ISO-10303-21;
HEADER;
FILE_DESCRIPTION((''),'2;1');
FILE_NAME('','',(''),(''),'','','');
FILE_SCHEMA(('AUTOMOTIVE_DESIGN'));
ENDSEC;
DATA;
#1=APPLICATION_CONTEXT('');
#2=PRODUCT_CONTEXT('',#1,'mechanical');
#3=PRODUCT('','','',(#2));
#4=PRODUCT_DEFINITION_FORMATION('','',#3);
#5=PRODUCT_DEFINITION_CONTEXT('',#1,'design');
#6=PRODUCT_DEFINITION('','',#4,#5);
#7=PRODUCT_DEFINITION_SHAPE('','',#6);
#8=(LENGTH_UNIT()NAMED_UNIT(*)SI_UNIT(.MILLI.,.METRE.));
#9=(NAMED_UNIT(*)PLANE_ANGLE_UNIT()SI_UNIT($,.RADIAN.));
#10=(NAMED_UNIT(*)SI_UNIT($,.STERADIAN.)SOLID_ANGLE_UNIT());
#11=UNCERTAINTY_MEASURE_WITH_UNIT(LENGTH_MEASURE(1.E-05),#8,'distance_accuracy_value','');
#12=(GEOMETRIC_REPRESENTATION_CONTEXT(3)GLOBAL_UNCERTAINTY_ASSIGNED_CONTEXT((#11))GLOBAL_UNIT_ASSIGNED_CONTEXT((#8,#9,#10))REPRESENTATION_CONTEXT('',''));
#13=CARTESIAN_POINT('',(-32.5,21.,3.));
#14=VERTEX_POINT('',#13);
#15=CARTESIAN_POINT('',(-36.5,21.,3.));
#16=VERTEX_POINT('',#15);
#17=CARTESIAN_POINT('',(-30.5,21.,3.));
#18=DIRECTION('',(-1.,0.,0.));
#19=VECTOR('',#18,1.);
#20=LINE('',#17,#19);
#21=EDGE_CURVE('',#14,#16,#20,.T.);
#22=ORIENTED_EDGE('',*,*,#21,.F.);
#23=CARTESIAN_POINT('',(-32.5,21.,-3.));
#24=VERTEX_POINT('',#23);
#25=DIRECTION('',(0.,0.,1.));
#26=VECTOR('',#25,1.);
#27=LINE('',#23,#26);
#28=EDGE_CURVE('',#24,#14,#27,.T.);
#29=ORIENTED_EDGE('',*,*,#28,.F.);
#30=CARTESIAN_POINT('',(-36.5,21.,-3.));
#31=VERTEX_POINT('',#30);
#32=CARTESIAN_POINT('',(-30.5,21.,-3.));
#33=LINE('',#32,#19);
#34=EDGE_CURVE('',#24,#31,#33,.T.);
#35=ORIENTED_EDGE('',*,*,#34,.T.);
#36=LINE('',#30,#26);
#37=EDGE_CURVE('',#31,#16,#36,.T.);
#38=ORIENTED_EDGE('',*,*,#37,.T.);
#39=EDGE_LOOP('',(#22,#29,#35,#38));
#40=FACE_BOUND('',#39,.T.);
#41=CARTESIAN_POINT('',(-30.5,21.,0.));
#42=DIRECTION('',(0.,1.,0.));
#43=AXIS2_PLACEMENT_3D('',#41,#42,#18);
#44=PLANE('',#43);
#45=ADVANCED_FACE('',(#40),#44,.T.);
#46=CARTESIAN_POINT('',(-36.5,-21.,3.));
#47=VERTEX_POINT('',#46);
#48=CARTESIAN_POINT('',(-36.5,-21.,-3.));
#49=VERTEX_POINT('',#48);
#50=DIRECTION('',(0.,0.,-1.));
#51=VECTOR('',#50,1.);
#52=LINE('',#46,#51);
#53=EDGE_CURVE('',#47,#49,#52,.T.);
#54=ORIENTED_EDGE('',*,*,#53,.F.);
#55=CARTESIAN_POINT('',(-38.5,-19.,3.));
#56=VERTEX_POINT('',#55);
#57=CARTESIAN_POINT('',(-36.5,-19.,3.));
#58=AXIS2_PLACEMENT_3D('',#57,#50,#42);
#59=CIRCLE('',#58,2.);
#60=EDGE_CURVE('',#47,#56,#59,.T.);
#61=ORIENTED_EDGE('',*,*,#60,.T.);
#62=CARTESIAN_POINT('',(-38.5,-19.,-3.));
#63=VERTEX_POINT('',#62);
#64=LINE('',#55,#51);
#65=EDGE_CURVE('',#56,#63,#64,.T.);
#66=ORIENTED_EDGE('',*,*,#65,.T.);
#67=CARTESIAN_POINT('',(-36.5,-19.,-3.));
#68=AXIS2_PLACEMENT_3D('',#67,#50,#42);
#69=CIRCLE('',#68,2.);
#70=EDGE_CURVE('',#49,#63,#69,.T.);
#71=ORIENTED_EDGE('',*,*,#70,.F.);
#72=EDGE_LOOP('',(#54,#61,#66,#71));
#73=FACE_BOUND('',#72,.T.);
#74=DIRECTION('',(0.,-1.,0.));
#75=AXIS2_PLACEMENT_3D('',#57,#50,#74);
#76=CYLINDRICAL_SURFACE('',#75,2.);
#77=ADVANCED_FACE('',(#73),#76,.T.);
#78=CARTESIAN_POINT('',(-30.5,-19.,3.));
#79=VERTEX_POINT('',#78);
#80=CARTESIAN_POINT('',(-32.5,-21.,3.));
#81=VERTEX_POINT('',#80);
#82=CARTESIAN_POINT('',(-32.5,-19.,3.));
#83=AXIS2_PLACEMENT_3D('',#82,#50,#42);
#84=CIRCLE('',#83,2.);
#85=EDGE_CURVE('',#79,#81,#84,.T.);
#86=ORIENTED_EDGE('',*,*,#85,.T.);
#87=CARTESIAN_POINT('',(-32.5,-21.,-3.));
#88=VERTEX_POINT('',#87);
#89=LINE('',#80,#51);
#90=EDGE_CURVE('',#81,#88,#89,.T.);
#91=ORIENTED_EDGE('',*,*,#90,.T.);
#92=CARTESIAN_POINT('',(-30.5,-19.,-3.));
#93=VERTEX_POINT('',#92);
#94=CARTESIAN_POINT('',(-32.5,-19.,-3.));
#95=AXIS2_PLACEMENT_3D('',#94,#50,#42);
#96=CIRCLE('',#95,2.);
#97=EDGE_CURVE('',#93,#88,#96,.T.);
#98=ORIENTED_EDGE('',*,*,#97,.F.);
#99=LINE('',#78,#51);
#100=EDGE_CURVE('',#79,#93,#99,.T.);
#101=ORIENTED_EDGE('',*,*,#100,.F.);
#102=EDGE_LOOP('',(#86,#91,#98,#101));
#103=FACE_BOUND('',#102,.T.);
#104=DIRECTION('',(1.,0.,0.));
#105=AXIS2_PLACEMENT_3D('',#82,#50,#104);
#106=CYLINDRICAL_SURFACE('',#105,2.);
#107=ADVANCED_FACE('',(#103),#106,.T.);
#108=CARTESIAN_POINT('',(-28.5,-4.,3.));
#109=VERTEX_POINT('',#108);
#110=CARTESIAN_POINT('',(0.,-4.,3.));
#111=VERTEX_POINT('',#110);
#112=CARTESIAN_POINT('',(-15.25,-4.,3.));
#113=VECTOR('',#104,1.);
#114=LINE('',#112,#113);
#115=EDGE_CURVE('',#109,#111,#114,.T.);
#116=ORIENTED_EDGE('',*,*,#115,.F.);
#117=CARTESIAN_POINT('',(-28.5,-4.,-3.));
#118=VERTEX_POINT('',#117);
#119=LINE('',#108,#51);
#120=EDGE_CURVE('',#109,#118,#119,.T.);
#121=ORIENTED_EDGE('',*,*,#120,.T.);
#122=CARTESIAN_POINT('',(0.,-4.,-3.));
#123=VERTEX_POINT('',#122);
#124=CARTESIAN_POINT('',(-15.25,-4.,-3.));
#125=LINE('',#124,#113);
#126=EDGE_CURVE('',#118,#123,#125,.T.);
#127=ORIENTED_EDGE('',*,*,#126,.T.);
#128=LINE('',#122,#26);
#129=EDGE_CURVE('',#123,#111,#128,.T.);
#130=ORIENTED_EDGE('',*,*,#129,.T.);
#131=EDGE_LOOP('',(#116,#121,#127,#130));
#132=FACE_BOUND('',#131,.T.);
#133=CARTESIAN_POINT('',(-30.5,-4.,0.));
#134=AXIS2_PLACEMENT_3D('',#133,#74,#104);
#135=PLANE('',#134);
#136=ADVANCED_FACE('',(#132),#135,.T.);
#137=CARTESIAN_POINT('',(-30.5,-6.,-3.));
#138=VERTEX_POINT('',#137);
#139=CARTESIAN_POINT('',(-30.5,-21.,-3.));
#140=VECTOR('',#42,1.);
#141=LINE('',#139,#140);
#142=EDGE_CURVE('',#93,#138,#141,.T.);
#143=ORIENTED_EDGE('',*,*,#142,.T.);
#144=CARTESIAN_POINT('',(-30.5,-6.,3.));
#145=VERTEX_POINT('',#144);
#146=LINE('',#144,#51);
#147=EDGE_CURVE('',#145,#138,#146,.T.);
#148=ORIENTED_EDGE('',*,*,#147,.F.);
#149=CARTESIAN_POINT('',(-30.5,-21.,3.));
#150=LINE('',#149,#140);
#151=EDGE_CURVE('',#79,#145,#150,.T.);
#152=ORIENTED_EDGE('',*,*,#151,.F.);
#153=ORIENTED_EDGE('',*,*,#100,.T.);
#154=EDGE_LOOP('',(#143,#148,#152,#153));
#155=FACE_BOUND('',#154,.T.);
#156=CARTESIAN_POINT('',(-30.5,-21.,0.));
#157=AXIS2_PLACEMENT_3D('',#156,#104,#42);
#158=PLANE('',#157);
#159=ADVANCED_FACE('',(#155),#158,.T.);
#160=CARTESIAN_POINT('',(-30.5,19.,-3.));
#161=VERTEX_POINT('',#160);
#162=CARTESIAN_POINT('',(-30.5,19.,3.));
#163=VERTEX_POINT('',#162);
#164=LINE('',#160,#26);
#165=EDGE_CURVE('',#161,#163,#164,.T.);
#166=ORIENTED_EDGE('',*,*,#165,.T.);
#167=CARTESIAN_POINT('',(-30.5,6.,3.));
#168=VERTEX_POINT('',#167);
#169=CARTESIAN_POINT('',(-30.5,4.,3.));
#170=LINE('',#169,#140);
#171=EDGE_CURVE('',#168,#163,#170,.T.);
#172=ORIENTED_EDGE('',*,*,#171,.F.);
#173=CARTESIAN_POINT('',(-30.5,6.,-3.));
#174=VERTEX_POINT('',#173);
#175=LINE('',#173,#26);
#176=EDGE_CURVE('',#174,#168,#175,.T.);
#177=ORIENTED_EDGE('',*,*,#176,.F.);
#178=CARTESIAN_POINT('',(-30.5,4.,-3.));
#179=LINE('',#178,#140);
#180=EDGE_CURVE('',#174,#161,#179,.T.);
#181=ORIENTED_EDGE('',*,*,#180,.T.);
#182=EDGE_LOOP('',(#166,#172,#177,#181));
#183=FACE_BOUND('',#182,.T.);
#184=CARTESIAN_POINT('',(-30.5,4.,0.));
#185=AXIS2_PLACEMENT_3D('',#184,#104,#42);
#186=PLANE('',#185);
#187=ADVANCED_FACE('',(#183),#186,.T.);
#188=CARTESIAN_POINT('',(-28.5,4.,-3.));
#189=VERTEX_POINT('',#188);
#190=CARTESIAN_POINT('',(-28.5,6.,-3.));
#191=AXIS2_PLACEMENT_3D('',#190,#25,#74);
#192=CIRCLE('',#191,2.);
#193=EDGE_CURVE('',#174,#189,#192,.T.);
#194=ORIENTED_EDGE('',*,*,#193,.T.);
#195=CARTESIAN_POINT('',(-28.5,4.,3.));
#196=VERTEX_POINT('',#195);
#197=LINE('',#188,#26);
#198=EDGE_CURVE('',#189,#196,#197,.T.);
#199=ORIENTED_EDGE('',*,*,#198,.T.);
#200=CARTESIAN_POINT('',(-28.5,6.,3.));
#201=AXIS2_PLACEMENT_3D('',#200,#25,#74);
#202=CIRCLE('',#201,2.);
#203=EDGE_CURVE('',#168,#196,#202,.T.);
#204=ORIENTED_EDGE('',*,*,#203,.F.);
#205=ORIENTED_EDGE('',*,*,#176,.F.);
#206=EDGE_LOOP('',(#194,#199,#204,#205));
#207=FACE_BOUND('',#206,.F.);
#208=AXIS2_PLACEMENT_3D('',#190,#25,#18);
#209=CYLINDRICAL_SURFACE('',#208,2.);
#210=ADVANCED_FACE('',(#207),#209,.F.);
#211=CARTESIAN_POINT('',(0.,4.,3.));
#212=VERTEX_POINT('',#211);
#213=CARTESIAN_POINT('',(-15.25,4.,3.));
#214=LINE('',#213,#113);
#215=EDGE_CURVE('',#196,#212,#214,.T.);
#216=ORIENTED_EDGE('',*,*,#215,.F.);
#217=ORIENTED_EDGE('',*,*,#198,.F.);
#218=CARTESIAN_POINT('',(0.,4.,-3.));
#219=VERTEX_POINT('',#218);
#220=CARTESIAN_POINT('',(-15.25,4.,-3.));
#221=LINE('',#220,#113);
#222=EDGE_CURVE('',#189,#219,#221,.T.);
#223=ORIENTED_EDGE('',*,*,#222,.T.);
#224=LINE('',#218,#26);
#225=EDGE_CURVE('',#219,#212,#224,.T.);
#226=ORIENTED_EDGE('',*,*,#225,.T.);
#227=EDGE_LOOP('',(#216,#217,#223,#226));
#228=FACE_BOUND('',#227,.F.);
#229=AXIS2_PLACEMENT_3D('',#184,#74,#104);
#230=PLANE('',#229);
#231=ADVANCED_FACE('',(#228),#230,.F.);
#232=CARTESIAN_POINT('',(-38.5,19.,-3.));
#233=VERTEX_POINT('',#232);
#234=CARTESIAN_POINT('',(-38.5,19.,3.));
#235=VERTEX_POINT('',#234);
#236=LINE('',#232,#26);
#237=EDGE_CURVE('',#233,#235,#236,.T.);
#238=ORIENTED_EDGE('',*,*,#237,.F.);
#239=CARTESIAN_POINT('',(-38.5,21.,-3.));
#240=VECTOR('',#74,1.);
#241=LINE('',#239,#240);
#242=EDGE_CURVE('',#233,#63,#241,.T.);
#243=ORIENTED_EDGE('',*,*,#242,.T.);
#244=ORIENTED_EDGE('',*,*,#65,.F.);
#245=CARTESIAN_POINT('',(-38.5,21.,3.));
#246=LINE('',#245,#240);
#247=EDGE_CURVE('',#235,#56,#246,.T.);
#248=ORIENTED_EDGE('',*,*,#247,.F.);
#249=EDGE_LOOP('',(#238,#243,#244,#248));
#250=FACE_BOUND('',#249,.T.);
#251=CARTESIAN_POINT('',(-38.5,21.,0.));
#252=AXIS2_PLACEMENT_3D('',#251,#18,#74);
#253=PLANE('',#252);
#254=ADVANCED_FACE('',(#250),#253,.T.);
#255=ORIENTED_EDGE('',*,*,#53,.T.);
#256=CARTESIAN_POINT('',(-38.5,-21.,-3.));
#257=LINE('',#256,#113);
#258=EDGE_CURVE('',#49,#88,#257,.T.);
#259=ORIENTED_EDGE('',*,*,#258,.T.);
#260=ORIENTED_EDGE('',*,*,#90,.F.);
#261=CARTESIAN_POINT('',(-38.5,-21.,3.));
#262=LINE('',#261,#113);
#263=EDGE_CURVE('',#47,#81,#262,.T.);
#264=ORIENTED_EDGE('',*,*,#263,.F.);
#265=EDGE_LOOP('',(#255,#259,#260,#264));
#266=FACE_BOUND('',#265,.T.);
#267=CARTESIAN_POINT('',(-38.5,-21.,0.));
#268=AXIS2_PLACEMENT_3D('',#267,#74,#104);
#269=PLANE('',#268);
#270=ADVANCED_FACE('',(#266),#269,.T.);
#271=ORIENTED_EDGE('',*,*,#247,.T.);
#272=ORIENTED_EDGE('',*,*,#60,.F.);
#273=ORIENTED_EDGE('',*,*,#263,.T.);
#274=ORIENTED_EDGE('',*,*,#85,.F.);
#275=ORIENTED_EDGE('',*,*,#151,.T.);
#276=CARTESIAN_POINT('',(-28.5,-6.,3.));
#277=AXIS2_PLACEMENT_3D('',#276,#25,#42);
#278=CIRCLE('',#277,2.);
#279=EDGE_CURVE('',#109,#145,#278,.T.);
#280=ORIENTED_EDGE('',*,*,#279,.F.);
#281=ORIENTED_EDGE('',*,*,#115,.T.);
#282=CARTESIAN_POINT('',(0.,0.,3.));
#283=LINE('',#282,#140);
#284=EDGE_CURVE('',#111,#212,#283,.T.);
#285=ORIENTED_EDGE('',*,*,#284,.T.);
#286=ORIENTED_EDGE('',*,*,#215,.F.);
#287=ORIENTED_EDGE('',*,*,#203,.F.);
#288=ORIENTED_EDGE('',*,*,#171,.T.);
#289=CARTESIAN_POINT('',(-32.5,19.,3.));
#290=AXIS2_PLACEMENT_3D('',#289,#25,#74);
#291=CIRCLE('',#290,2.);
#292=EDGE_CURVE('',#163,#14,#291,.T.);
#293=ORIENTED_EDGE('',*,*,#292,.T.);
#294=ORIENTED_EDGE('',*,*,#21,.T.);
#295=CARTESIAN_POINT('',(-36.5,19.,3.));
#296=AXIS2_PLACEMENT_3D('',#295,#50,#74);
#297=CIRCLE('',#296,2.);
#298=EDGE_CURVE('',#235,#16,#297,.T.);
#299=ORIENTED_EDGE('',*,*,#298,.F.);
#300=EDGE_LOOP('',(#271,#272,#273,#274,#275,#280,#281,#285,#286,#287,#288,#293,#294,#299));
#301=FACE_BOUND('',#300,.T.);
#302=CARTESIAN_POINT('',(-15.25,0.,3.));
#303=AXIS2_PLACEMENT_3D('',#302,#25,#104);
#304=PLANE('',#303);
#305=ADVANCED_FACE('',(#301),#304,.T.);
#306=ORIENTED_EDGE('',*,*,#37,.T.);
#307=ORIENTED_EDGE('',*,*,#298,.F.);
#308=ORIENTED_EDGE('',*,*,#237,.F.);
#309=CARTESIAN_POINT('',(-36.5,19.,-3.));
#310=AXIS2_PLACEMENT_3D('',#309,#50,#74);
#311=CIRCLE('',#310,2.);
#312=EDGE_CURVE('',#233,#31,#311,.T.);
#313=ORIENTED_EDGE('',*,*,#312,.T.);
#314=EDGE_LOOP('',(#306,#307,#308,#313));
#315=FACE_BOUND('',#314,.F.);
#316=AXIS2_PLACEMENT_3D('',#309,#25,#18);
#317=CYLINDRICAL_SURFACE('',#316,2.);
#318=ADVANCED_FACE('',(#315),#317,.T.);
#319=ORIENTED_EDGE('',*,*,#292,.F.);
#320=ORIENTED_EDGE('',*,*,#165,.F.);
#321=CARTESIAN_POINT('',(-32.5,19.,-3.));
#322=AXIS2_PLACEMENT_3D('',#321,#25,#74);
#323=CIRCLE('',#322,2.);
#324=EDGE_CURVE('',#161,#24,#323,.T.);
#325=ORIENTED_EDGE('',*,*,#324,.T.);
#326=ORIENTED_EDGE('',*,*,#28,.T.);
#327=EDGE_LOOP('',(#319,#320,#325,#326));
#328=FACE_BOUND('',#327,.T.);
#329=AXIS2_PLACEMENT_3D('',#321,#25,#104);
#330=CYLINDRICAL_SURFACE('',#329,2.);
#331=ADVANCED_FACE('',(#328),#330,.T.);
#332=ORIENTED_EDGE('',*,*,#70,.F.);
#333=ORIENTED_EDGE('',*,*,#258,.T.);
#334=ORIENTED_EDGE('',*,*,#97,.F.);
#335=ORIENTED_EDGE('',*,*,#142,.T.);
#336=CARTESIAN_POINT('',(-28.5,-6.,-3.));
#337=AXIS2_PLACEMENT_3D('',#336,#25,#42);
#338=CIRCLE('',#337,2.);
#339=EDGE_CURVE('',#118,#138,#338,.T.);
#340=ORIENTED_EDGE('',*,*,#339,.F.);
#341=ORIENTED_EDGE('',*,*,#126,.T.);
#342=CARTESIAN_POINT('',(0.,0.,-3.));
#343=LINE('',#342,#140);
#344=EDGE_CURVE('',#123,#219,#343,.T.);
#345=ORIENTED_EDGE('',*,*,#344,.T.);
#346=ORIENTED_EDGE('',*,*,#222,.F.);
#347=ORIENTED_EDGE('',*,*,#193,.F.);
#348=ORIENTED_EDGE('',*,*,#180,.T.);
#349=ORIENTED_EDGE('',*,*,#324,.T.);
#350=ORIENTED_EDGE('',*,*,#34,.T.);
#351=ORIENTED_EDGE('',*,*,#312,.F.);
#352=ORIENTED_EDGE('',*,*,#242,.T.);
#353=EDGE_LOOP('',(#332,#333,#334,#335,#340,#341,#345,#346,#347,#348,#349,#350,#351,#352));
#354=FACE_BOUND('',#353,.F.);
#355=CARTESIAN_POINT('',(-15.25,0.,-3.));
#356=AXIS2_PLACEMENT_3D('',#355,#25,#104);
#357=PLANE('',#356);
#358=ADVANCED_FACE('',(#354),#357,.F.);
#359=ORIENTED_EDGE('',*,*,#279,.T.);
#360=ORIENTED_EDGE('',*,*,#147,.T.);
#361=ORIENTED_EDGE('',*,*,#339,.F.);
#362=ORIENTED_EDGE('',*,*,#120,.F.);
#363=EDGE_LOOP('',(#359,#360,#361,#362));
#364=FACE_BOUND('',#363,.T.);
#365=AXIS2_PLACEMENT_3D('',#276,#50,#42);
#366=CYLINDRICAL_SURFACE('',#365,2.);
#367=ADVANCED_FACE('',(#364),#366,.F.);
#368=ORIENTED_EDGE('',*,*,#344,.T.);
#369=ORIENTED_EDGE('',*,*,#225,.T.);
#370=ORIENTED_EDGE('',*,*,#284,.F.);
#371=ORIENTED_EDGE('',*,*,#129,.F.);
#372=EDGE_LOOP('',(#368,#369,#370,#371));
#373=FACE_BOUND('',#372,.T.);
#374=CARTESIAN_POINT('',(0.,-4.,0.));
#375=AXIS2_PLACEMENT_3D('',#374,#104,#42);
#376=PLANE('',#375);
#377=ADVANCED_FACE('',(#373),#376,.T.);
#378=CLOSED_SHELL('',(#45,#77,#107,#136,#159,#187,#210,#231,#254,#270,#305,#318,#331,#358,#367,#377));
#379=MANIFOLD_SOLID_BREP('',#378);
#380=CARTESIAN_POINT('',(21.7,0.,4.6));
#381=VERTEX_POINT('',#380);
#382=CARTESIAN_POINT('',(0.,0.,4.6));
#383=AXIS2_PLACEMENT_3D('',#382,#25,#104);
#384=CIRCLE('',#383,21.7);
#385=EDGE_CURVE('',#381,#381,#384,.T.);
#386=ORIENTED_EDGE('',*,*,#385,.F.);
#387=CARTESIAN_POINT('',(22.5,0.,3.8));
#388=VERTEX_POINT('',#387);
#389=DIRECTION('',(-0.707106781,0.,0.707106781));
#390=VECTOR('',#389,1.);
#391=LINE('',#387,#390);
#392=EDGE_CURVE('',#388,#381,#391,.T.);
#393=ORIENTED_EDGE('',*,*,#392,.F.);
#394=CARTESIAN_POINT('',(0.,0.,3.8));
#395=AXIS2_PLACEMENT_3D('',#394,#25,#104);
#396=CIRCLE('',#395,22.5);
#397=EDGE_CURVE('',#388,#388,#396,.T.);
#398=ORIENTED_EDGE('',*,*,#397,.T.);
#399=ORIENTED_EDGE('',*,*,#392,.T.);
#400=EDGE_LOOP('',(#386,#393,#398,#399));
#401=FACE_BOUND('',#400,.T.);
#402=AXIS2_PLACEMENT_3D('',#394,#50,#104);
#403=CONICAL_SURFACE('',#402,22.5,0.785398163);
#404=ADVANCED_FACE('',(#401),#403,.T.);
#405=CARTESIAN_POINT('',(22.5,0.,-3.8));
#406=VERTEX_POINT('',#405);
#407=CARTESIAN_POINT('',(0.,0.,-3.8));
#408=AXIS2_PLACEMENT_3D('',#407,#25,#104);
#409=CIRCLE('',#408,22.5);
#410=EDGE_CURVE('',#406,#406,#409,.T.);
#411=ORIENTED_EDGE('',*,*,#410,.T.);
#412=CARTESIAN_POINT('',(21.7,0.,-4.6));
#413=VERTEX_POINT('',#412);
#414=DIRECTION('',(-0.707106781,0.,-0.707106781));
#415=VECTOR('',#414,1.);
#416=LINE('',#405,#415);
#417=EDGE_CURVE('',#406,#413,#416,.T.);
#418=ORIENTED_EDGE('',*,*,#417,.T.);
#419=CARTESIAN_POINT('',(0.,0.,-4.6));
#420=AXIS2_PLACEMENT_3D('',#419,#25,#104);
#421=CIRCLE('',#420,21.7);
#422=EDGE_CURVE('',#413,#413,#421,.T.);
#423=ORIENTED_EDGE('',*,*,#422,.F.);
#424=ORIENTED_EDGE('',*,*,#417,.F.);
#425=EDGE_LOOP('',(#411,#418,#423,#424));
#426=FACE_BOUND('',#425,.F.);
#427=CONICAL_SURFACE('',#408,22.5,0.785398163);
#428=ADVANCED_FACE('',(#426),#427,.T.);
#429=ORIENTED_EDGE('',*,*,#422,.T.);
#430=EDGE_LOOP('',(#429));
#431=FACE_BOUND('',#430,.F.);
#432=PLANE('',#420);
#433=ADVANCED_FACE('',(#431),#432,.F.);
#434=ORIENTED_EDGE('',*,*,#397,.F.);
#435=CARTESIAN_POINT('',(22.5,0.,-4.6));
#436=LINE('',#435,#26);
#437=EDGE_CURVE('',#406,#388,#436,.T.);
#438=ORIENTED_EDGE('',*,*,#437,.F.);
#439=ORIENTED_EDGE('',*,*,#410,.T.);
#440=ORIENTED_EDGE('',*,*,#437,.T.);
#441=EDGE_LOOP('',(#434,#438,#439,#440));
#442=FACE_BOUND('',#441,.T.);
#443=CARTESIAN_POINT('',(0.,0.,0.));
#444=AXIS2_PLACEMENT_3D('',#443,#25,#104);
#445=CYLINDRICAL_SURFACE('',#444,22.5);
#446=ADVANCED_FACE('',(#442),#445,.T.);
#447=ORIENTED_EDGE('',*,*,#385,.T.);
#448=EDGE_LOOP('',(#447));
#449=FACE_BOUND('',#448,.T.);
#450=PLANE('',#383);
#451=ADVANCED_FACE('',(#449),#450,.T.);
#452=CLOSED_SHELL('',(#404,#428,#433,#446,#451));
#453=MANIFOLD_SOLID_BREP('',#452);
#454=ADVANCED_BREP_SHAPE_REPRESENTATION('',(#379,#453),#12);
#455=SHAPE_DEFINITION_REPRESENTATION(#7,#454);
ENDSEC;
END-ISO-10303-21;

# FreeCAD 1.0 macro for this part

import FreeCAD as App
import Part
import Sketcher

V = App.Vector


def edges_at(feature, points):
    """Names of the edges that pass closest to the given points."""
    edges = feature.Shape.Edges
    near = lambda p: min(range(len(edges)), key=lambda i: edges[i].distToShape(Part.Vertex(*p))[0])
    return sorted({f"Edge{near(p) + 1}" for p in points})

doc = App.newDocument("Part")
body = doc.addObject("PartDesign::Body", "Body")

# Sketch on XY plane
sketch1 = doc.addObject("Sketcher::SketchObject", "Sketch")
body.addObject(sketch1)
sketch1.AttachmentSupport = (doc.XY_Plane, [""])
sketch1.MapMode = "FlatFace"
sketch1.addGeometry(Part.Circle(V(0, 0, 0), V(0, 0, 1), 22), False)
sketch1.addConstraint(Sketcher.Constraint("Coincident", 0, 3, -1, 1))
sketch1.addConstraint(Sketcher.Constraint("Diameter", 0, 45.0))
pad1 = doc.addObject("PartDesign::Pad", "Pad")
body.addObject(pad1)
pad1.Profile = sketch1
pad1.Type = "TwoLengths"
pad1.Length = 4.6
pad1.Length2 = 4.6
doc.recompute()

chamfer = doc.addObject("PartDesign::Chamfer", "Chamfer")
body.addObject(chamfer)
chamfer.Base = (pad1, edges_at(pad1, [(-22.5, 0, 4.6), (-22.5, 0, -4.6)]))
chamfer.Size = 0.8
body2 = doc.addObject("PartDesign::Body", "Body001")

# Sketch on XY plane
sketch2 = doc.addObject("Sketcher::SketchObject", "Sketch001")
body2.addObject(sketch2)
sketch2.AttachmentSupport = (doc.getObject("XY_Plane001"), [""])
sketch2.MapMode = "FlatFace"
sketch2.addGeometry(Part.LineSegment(V(-30, -4, 0), V(0, -4, 0)), False)
sketch2.addGeometry(Part.LineSegment(V(0, -4, 0), V(0, 4, 0)), False)
sketch2.addGeometry(Part.LineSegment(V(0, 4, 0), V(-30, 4, 0)), False)
sketch2.addGeometry(Part.LineSegment(V(-30, 4, 0), V(-30, 21, 0)), False)
sketch2.addGeometry(Part.LineSegment(V(-30, 21, 0), V(-38, 21, 0)), False)
sketch2.addGeometry(Part.LineSegment(V(-38, 21, 0), V(-38, -21, 0)), False)
sketch2.addGeometry(Part.LineSegment(V(-38, -21, 0), V(-30, -21, 0)), False)
sketch2.addGeometry(Part.LineSegment(V(-30, -21, 0), V(-30, -4, 0)), False)
sketch2.addConstraint(Sketcher.Constraint("Coincident", 0, 2, 1, 1))
sketch2.addConstraint(Sketcher.Constraint("Coincident", 1, 2, 2, 1))
sketch2.addConstraint(Sketcher.Constraint("Coincident", 2, 2, 3, 1))
sketch2.addConstraint(Sketcher.Constraint("Coincident", 3, 2, 4, 1))
sketch2.addConstraint(Sketcher.Constraint("Coincident", 4, 2, 5, 1))
sketch2.addConstraint(Sketcher.Constraint("Coincident", 5, 2, 6, 1))
sketch2.addConstraint(Sketcher.Constraint("Coincident", 6, 2, 7, 1))
sketch2.addConstraint(Sketcher.Constraint("Coincident", 7, 2, 0, 1))
sketch2.addConstraint(Sketcher.Constraint("Horizontal", 0))
sketch2.addConstraint(Sketcher.Constraint("Vertical", 1))
sketch2.addConstraint(Sketcher.Constraint("Horizontal", 2))
sketch2.addConstraint(Sketcher.Constraint("Vertical", 3))
sketch2.addConstraint(Sketcher.Constraint("Horizontal", 4))
sketch2.addConstraint(Sketcher.Constraint("Vertical", 5))
sketch2.addConstraint(Sketcher.Constraint("Horizontal", 6))
sketch2.addConstraint(Sketcher.Constraint("Vertical", 7))
sketch2.addConstraint(Sketcher.Constraint("Symmetric", 0, 2, 1, 2, -1, 1))
sketch2.addConstraint(Sketcher.Constraint("Symmetric", 3, 2, 6, 2, -1))
sketch2.addConstraint(Sketcher.Constraint("Equal", 6, 1))
sketch2.addConstraint(Sketcher.Constraint("DistanceX", 4, 2, 4, 1, 8.0))
sketch2.addConstraint(Sketcher.Constraint("DistanceY", 3, 1, 3, 2, 17.0))
sketch2.addConstraint(Sketcher.Constraint("DistanceX", 0, 1, 0, 2, 30.5))
pad2 = doc.addObject("PartDesign::Pad", "Pad001")
body2.addObject(pad2)
pad2.Profile = sketch2
pad2.Type = "TwoLengths"
pad2.Length = 3
pad2.Length2 = 3
doc.recompute()

fillet = doc.addObject("PartDesign::Fillet", "Fillet")
body2.addObject(fillet)
fillet.Base = (pad2, edges_at(pad2, [(-30.5, -4, 0), (-30.5, 4, 0)]))
fillet.Radius = 2
doc.recompute()

fillet2 = doc.addObject("PartDesign::Fillet", "Fillet001")
body2.addObject(fillet2)
fillet2.Base = (fillet, edges_at(fillet, [
    (-30.5, -21, 0),
    (-38.5, -21, 0),
    (-30.5, 21, 0),
    (-38.5, 21, 0),
]))
fillet2.Radius = 2

doc.recompute()
